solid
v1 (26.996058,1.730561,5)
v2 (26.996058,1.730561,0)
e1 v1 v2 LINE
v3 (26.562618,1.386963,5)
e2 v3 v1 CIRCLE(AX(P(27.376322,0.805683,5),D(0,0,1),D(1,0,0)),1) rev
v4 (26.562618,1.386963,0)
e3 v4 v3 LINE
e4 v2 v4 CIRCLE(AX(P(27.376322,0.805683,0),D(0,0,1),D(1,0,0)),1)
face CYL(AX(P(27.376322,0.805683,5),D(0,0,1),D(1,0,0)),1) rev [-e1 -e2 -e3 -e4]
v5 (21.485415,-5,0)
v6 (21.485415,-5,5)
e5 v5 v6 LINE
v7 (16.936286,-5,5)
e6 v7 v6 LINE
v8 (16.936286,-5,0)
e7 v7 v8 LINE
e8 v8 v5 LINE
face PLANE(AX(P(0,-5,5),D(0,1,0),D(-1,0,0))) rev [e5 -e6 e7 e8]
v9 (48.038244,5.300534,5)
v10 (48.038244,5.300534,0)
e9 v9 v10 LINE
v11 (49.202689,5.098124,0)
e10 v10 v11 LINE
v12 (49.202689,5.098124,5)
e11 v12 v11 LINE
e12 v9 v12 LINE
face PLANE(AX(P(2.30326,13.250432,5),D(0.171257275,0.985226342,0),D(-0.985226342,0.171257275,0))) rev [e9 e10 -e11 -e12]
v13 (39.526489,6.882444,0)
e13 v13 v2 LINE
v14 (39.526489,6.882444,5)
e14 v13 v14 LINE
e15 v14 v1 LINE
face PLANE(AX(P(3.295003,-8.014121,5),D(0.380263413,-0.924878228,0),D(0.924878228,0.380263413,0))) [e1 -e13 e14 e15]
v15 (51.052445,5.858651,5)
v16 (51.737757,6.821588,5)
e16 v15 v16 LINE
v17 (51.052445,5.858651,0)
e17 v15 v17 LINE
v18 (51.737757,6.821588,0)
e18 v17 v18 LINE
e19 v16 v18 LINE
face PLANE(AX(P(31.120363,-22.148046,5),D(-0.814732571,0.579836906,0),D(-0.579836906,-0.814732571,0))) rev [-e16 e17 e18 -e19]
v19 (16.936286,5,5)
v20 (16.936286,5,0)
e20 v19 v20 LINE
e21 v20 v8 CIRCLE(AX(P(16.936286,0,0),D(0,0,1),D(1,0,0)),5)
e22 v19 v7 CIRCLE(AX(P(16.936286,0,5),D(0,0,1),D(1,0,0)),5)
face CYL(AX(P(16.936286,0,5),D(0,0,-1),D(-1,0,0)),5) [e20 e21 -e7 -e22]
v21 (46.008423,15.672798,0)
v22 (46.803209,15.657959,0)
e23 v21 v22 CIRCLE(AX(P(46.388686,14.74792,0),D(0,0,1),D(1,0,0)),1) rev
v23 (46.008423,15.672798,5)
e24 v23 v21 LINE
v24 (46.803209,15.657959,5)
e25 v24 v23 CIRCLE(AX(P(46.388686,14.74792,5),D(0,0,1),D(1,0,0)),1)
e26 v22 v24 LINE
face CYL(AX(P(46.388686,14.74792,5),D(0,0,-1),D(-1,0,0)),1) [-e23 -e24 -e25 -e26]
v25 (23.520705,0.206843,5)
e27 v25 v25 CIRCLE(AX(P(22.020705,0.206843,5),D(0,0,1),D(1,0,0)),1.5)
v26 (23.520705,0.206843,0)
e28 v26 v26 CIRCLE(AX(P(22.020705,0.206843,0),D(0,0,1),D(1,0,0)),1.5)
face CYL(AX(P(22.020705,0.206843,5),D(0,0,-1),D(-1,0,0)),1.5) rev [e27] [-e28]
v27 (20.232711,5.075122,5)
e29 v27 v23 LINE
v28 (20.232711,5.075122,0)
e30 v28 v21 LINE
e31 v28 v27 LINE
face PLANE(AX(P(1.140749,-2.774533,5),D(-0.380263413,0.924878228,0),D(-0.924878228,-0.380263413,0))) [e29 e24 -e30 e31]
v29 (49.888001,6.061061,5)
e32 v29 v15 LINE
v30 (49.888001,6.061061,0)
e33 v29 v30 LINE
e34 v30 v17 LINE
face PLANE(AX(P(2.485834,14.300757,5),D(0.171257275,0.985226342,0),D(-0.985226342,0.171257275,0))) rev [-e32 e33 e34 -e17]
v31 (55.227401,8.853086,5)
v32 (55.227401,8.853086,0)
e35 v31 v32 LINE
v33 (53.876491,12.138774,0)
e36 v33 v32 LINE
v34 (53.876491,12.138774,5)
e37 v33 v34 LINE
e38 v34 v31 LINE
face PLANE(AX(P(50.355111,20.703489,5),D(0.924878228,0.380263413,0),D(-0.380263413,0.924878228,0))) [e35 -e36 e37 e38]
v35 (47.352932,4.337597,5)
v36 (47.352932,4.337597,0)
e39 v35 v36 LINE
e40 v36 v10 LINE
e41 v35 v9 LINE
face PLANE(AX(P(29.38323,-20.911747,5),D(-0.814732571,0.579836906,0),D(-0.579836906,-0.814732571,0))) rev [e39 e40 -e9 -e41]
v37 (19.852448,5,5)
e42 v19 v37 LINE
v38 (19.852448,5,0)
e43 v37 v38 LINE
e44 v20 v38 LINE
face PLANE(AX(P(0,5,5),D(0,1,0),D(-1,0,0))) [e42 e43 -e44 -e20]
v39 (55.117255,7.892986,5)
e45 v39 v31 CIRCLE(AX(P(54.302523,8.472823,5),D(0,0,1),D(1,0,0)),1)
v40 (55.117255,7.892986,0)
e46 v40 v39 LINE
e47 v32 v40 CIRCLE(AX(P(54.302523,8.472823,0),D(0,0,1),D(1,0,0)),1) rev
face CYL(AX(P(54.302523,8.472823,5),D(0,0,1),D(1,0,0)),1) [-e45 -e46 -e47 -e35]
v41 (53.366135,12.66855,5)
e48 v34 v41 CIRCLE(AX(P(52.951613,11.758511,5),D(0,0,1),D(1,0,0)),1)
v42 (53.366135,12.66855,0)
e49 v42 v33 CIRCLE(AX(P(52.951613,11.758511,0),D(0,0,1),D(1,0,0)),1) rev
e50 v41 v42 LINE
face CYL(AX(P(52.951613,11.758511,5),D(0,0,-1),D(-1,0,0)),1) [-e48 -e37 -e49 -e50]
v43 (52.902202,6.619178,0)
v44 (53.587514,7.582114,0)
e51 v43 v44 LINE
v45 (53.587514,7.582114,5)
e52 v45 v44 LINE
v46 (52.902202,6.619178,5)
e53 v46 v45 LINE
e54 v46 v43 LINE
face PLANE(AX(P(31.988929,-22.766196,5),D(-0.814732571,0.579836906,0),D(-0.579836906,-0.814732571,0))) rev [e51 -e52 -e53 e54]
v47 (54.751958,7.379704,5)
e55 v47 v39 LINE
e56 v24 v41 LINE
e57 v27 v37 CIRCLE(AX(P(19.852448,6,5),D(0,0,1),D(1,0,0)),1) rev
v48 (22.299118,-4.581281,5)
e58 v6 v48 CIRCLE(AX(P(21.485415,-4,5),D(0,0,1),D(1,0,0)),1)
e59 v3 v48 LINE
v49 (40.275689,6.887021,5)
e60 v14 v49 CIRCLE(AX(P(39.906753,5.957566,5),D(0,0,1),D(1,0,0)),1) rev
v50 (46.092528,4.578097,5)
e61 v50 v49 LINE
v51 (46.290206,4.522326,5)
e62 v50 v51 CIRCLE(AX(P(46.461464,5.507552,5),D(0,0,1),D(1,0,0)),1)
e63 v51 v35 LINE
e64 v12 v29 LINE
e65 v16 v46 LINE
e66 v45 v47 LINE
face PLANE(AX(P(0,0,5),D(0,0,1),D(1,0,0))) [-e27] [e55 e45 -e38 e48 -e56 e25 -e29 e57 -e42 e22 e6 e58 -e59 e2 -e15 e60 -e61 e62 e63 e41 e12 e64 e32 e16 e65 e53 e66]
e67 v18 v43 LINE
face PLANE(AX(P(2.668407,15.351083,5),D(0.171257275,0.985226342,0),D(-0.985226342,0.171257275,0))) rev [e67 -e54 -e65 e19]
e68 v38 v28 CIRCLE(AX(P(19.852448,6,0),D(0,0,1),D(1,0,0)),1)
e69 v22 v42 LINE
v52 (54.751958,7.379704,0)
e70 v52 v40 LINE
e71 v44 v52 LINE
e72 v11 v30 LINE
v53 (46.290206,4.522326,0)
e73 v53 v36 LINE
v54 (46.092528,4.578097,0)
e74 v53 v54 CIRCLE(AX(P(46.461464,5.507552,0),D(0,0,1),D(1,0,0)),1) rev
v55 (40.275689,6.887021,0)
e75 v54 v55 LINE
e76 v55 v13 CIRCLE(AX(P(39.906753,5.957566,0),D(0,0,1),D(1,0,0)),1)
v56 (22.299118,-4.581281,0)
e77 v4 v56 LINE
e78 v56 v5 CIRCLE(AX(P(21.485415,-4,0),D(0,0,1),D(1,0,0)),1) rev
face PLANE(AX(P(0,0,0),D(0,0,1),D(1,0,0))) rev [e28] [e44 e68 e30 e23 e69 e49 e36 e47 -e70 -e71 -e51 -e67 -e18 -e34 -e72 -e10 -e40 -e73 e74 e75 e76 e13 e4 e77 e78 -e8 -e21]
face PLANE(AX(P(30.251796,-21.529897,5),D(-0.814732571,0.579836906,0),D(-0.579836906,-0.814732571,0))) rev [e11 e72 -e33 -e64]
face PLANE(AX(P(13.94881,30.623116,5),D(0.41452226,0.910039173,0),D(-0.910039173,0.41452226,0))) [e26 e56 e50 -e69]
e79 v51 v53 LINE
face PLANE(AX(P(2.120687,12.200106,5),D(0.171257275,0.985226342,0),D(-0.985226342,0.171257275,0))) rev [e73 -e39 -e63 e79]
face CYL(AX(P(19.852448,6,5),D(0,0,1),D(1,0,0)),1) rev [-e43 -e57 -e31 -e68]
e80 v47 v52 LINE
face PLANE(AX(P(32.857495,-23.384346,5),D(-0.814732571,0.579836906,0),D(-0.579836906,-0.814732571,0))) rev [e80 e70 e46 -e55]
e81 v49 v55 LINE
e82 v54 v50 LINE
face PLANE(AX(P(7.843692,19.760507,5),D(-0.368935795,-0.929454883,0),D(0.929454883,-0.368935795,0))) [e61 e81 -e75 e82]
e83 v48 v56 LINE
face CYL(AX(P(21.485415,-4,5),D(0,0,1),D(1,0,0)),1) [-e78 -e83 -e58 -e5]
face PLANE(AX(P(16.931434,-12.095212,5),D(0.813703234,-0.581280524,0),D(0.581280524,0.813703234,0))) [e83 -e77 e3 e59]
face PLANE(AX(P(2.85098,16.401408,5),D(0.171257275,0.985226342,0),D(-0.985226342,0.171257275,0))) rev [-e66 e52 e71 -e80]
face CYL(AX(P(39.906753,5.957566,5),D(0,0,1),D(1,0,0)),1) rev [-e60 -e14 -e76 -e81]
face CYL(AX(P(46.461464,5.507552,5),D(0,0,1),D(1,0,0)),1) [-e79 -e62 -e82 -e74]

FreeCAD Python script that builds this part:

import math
import FreeCAD as App
import Part
import Sketcher

V = App.Vector
Q = App.Units.Quantity


def edges_at(feature, points):
    """Names of the edges that pass closest to the given points."""
    edges = feature.Shape.Edges
    near = lambda p: min(range(len(edges)), key=lambda i: edges[i].distToShape(Part.Vertex(*p))[0])
    return sorted({f"Edge{near(p) + 1}" for p in points})

doc = App.newDocument("Part")
body = doc.addObject("PartDesign::Body", "Body")

# Sketch on XY plane
sketch1 = body.newObject("Sketcher::SketchObject", "Sketch")
sketch1.AttachmentSupport = (doc.getObject("XY_Plane"), [""])
sketch1.MapMode = "FlatFace"
sketch1.addGeometry([
    Part.LineSegment(V(20.1, 5, 0), V(0, 5, 0)),  # 0
    Part.ArcOfCircle(Part.Circle(V(0, 0, 0), V(0, 0, 1), 5), math.radians(90), math.radians(270)),  # 1
    Part.LineSegment(V(0, -5, 0), V(22, -5, 0)),  # 2
    Part.LineSegment(V(22, -5, 0), V(26.7, 1.6, 0)),  # 3
    Part.LineSegment(V(26.7, 1.6, 0), V(39.9, 7, 0)),  # 4
    Part.LineSegment(V(39.9, 7, 0), V(46.2, 4.5, 0)),  # 5
    Part.LineSegment(V(46.2, 4.5, 0), V(47.4, 4.3, 0)),  # 6
    Part.LineSegment(V(47.4, 4.3, 0), V(48, 5.3, 0)),  # 7
    Part.LineSegment(V(48, 5.3, 0), V(49.2, 5.1, 0)),  # 8
    Part.LineSegment(V(49.2, 5.1, 0), V(49.9, 6.1, 0)),  # 9
    Part.LineSegment(V(49.9, 6.1, 0), V(51.1, 5.9, 0)),  # 10
    Part.LineSegment(V(51.1, 5.9, 0), V(51.7, 6.8, 0)),  # 11
    Part.LineSegment(V(51.7, 6.8, 0), V(52.9, 6.6, 0)),  # 12
    Part.LineSegment(V(52.9, 6.6, 0), V(53.6, 7.6, 0)),  # 13
    Part.LineSegment(V(53.6, 7.6, 0), V(54.8, 7.4, 0)),  # 14
    Part.LineSegment(V(54.8, 7.4, 0), V(55.4, 8.3, 0)),  # 15
    Part.LineSegment(V(55.4, 8.3, 0), V(53.7, 12.5, 0)),  # 16
    Part.LineSegment(V(53.7, 12.5, 0), V(46.4, 15.8, 0)),  # 17
    Part.LineSegment(V(46.4, 15.8, 0), V(20.1, 5, 0)),  # 18
    Part.Circle(V(0, 0, 0), V(0, 0, 1), 1.5),  # 19
    Part.Circle(V(22, 0.2, 0), V(0, 0, 1), 1.5),  # 20
], False)
sketch1.addConstraint([
    Sketcher.Constraint("Tangent", 0, 2, 1, 1),
    Sketcher.Constraint("Tangent", 1, 2, 2, 1),
    Sketcher.Constraint("Coincident", 2, 2, 3, 1),
    Sketcher.Constraint("Coincident", 3, 2, 4, 1),
    Sketcher.Constraint("Coincident", 4, 2, 5, 1),
    Sketcher.Constraint("Coincident", 5, 2, 6, 1),
    Sketcher.Constraint("Coincident", 6, 2, 7, 1),
    Sketcher.Constraint("Coincident", 7, 2, 8, 1),
    Sketcher.Constraint("Coincident", 8, 2, 9, 1),
    Sketcher.Constraint("Coincident", 9, 2, 10, 1),
    Sketcher.Constraint("Coincident", 10, 2, 11, 1),
    Sketcher.Constraint("Coincident", 11, 2, 12, 1),
    Sketcher.Constraint("Coincident", 12, 2, 13, 1),
    Sketcher.Constraint("Coincident", 13, 2, 14, 1),
    Sketcher.Constraint("Coincident", 14, 2, 15, 1),
    Sketcher.Constraint("Coincident", 15, 2, 16, 1),
    Sketcher.Constraint("Coincident", 16, 2, 17, 1),
    Sketcher.Constraint("Coincident", 17, 2, 18, 1),
    Sketcher.Constraint("Coincident", 18, 2, 0, 1),
    Sketcher.Constraint("Horizontal", 0),
    Sketcher.Constraint("Horizontal", 2),
    Sketcher.Constraint("Coincident", 1, 3, -1, 1),
    Sketcher.Constraint("Coincident", 19, 3, -1, 1),
    Sketcher.Constraint("Equal", 19, 20),
    Sketcher.Constraint("Parallel", 6, 8),
    Sketcher.Constraint("Parallel", 7, 9),
    Sketcher.Constraint("Parallel", 8, 10),
    Sketcher.Constraint("Parallel", 9, 11),
    Sketcher.Constraint("Parallel", 10, 12),
    Sketcher.Constraint("Parallel", 11, 13),
    Sketcher.Constraint("Parallel", 12, 14),
    Sketcher.Constraint("Parallel", 13, 15),
    Sketcher.Constraint("Perpendicular", 4, 16),
    Sketcher.Constraint("Perpendicular", 16, 18),
    Sketcher.Constraint("Equal", 6, 7),
    Sketcher.Constraint("Equal", 7, 8),
    Sketcher.Constraint("Equal", 8, 9),
    Sketcher.Constraint("Equal", 9, 10),
    Sketcher.Constraint("Equal", 10, 11),
    Sketcher.Constraint("Equal", 11, 12),
    Sketcher.Constraint("Equal", 12, 13),
    Sketcher.Constraint("Equal", 13, 14),
    Sketcher.Constraint("Equal", 14, 15),
    Sketcher.Constraint("Diameter", 19, 3.0),
    Sketcher.Constraint("Radius", 1, 5.0),
    Sketcher.Constraint("DistanceX", 2, 1, 2, 2, 22.0),
    Sketcher.Constraint("Distance", 16, 4.5),
    Sketcher.Constraint("Distance", 18, 28.5),
    Sketcher.Constraint("DistanceX", 0, 2, 0, 1, 20.05),
    Sketcher.Constraint("Angle", 4, Q("22.35 deg")),
    Sketcher.Constraint("Angle", 5, Q("-21.65 deg")),
    Sketcher.Constraint("Distance", 4, 14.24),
    Sketcher.Constraint("DistanceX", -1, 1, 9, 2, 49.888001),
    Sketcher.Constraint("DistanceX", -1, 1, 3, 2, 26.729898),
    Sketcher.Constraint("DistanceX", -1, 1, 12, 2, 52.902202),
    Sketcher.Constraint("DistanceY", -1, 1, 3, 2, 1.62113),
    Sketcher.Constraint("DistanceX", -1, 1, 5, 2, 46.188488),
    Sketcher.Constraint("DistanceY", -1, 1, 9, 2, 6.061061),
    Sketcher.Constraint("DistanceX", 20, 3, 4, 2, 17.879459),
    Sketcher.Constraint("DistanceY", 20, 3, 7, 2, 5.093691),
])
pad1 = body.newObject("PartDesign::Pad", "Pad")
pad1.Profile = sketch1
pad1.Length = 5
doc.recompute()

fillet = body.newObject("PartDesign::Fillet", "Fillet")
fillet.Base = (pad1, edges_at(pad1, [
    (22, -5, 2.5),
    (20.05, 5, 2.5),
    (46.409, 15.838, 2.5),
    (53.726, 12.505, 2.5),
    (55.437, 8.343, 2.5),
    (46.188, 4.54, 2.5),
    (39.9, 7.036, 2.5),
    (26.73, 1.621, 2.5),
]))
fillet.Radius = 1

# Sketch on XY plane
sketch2 = body.newObject("Sketcher::SketchObject", "Sketch001")
sketch2.AttachmentSupport = (doc.getObject("XY_Plane"), [""])
sketch2.MapMode = "FlatFace"
sketch2.addGeometry([
    Part.LineSegment(V(17, -5, 0), V(-9, -5, 0)),
    Part.LineSegment(V(-9, -5, 0), V(-9, 5, 0)),
    Part.LineSegment(V(-9, 5, 0), V(17, 5, 0)),
    Part.ArcOfCircle(Part.Circle(V(17, 0, 0), V(0, 0, 1), 5), math.radians(90), math.radians(270)),
], False)
sketch2.addConstraint([
    Sketcher.Constraint("Coincident", 0, 2, 1, 1),
    Sketcher.Constraint("Coincident", 1, 2, 2, 1),
    Sketcher.Constraint("Tangent", 2, 2, 3, 1),
    Sketcher.Constraint("Tangent", 3, 2, 0, 1),
    Sketcher.Constraint("Horizontal", 0),
    Sketcher.Constraint("Vertical", 1),
    Sketcher.Constraint("Horizontal", 2),
    Sketcher.Constraint("PointOnObject", 3, 3, -1),
    Sketcher.Constraint("Radius", 3, 5.0),
    Sketcher.Constraint("DistanceX", 0, 2, 0, 1, 26.103636),
    Sketcher.Constraint("DistanceX", 0, 2, -1, 1, 9.16735),
])
pocket1 = body.newObject("PartDesign::Pocket", "Pocket")
pocket1.Profile = sketch2
pocket1.Length = 5
pocket1.Reversed = True

doc.recompute()
